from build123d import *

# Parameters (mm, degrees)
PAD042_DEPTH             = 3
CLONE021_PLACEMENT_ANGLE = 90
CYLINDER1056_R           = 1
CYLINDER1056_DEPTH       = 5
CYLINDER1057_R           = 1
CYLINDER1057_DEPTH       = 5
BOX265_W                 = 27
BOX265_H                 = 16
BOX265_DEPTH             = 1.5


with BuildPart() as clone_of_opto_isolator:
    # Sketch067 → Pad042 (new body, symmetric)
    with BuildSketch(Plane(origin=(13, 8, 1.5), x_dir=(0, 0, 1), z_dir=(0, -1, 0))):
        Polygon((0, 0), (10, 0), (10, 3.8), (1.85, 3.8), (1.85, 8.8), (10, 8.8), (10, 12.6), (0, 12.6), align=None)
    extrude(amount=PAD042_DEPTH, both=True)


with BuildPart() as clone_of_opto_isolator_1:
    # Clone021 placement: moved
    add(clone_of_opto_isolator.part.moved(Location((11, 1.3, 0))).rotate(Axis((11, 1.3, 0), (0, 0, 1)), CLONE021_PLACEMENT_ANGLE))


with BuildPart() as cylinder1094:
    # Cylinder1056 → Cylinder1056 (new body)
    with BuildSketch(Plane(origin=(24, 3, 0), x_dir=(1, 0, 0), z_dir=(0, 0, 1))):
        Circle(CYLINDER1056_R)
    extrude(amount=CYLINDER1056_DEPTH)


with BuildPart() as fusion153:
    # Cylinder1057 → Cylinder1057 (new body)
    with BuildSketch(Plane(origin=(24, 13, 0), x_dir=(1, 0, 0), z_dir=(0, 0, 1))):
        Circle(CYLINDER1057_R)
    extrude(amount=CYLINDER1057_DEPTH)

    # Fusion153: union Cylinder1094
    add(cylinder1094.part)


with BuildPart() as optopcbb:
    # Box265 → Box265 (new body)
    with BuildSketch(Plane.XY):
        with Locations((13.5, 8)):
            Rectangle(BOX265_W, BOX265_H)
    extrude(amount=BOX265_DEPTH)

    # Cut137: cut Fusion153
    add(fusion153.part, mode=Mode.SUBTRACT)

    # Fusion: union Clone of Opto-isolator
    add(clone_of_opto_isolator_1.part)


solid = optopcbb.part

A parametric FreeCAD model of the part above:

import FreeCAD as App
import Part
import Sketcher
from FreeCAD import Vector
Q = App.Units.Quantity


def add_polygon(sketch, points):
    """Adds a closed chain of lines whose ends are joined by coincident constraints."""
    first, n = sketch.GeometryCount, len(points)
    for a, b in zip(points, points[1:] + points[:1]):
        sketch.addGeometry(Part.LineSegment(App.Vector(*a, 0), App.Vector(*b, 0)), False)
    for i in range(n):
        sketch.addConstraint(Sketcher.Constraint("Coincident", first + i, 2, first + (i + 1) % n, 1))

doc = App.newDocument("Part")
body = doc.addObject("PartDesign::Body", "Body")

sketch1 = body.newObject("Sketcher::SketchObject", "Sketch")
sketch1.AttachmentSupport = (doc.getObject("XZ_Plane"), [""])
sketch1.MapMode = "FlatFace"
sketch1.AttachmentOffset = App.Placement(Vector(0, 0, -8), App.Rotation())
add_polygon(sketch1, [(13, 1.5), (13, 11.5), (9.2, 11.5), (9.2, 3.4), (4.2, 3.4), (4.2, 11.5), (0.4, 11.5), (0.4, 1.5)])
sketch1.addConstraint(Sketcher.Constraint("Vertical", 0))
sketch1.addConstraint(Sketcher.Constraint("Horizontal", 1))
sketch1.addConstraint(Sketcher.Constraint("Vertical", 2))
sketch1.addConstraint(Sketcher.Constraint("Horizontal", 3))
sketch1.addConstraint(Sketcher.Constraint("Vertical", 4))
sketch1.addConstraint(Sketcher.Constraint("Horizontal", 5))
sketch1.addConstraint(Sketcher.Constraint("Vertical", 6))
sketch1.addConstraint(Sketcher.Constraint("Horizontal", 7))
sketch1.addConstraint(Sketcher.Constraint("Horizontal", 1, 2, 4, 2))
sketch1.addConstraint(Sketcher.Constraint("Equal", 1, 5))
sketch1.addConstraint(Sketcher.Constraint("DistanceX", 3, 2, 3, 1, Q("5 mm")))
sketch1.addConstraint(Sketcher.Constraint("DistanceY", 0, 1, 0, 2, Q("10 mm")))
sketch1.addConstraint(Sketcher.Constraint("DistanceX", 1, 2, 1, 1, Q("3.8 mm")))
sketch1.addConstraint(Sketcher.Constraint("DistanceX", -1, 1, 0, 2, Q("13 mm")))
sketch1.addConstraint(Sketcher.Constraint("DistanceY", 2, 2, 2, 1, Q("8.15 mm")))
sketch1.addConstraint(Sketcher.Constraint("DistanceY", -1, 1, 0, 2, Q("11.5 mm")))
pad1 = body.newObject("PartDesign::Pad", "Pad")
pad1.Profile = sketch1
pad1.Length = 6
pad1.Midplane = True
body2 = doc.addObject("PartDesign::Body", "Body001")
doc.recompute()

body.Placement = App.Placement(Vector(11, 1.3, 0), App.Rotation(Vector(0, 0, 1), 90))
boolean = body2.newObject("PartDesign::Boolean", "Boolean")
boolean.Type = "Fuse"
boolean.addObjects([body])
body3 = doc.addObject("PartDesign::Body", "Body002")

sketch2 = body3.newObject("Sketcher::SketchObject", "Sketch001")
sketch2.AttachmentSupport = (doc.getObject("XY_Plane002"), [""])
sketch2.MapMode = "FlatFace"
sketch2.addGeometry(Part.Circle(Vector(24, 3, 0), Vector(0, 0, 1), 1), False)
sketch2.addConstraint(Sketcher.Constraint("Diameter", 0, Q("2 mm")))
sketch2.addConstraint(Sketcher.Constraint("DistanceX", -1, 1, 0, 3, Q("24 mm")))
sketch2.addConstraint(Sketcher.Constraint("DistanceY", -1, 1, 0, 3, Q("3 mm")))
pad2 = body3.newObject("PartDesign::Pad", "Pad001")
pad2.Profile = sketch2
pad2.Length = 5
body4 = doc.addObject("PartDesign::Body", "Body003")
body4.AllowCompound = True

sketch3 = body4.newObject("Sketcher::SketchObject", "Sketch002")
sketch3.AttachmentSupport = (doc.getObject("XY_Plane003"), [""])
sketch3.MapMode = "FlatFace"
sketch3.addGeometry(Part.Circle(Vector(24, 13, 0), Vector(0, 0, 1), 1), False)
sketch3.addConstraint(Sketcher.Constraint("Diameter", 0, Q("2 mm")))
sketch3.addConstraint(Sketcher.Constraint("DistanceX", -1, 1, 0, 3, Q("24 mm")))
sketch3.addConstraint(Sketcher.Constraint("DistanceY", -1, 1, 0, 3, Q("13 mm")))
pad3 = body4.newObject("PartDesign::Pad", "Pad002")
pad3.Profile = sketch3
pad3.Length = 5
doc.recompute()

boolean2 = body4.newObject("PartDesign::Boolean", "Boolean001")
boolean2.Type = "Fuse"
boolean2.addObjects([body3])
body5 = doc.addObject("PartDesign::Body", "Body004")

sketch4 = body5.newObject("Sketcher::SketchObject", "Sketch003")
sketch4.AttachmentSupport = (doc.getObject("XY_Plane004"), [""])
sketch4.MapMode = "FlatFace"
add_polygon(sketch4, [(0, 16), (0, 0), (27, 0), (27, 16)])
sketch4.addConstraint(Sketcher.Constraint("Vertical", 0))
sketch4.addConstraint(Sketcher.Constraint("Horizontal", 1))
sketch4.addConstraint(Sketcher.Constraint("Vertical", 2))
sketch4.addConstraint(Sketcher.Constraint("Horizontal", 3))
sketch4.addConstraint(Sketcher.Constraint("Coincident", 0, 2, -1, 1))
sketch4.addConstraint(Sketcher.Constraint("DistanceX", 1, 1, 1, 2, Q("27 mm")))
sketch4.addConstraint(Sketcher.Constraint("DistanceY", 0, 2, 0, 1, Q("16 mm")))
pad4 = body5.newObject("PartDesign::Pad", "Pad003")
pad4.Profile = sketch4
pad4.Length = 1.5
doc.recompute()

boolean3 = body5.newObject("PartDesign::Boolean", "Boolean002")
boolean3.Type = "Cut"
boolean3.addObjects([body4])
doc.recompute()

boolean4 = body5.newObject("PartDesign::Boolean", "Boolean003")
boolean4.Type = "Fuse"
boolean4.addObjects([body2])

doc.recompute()
